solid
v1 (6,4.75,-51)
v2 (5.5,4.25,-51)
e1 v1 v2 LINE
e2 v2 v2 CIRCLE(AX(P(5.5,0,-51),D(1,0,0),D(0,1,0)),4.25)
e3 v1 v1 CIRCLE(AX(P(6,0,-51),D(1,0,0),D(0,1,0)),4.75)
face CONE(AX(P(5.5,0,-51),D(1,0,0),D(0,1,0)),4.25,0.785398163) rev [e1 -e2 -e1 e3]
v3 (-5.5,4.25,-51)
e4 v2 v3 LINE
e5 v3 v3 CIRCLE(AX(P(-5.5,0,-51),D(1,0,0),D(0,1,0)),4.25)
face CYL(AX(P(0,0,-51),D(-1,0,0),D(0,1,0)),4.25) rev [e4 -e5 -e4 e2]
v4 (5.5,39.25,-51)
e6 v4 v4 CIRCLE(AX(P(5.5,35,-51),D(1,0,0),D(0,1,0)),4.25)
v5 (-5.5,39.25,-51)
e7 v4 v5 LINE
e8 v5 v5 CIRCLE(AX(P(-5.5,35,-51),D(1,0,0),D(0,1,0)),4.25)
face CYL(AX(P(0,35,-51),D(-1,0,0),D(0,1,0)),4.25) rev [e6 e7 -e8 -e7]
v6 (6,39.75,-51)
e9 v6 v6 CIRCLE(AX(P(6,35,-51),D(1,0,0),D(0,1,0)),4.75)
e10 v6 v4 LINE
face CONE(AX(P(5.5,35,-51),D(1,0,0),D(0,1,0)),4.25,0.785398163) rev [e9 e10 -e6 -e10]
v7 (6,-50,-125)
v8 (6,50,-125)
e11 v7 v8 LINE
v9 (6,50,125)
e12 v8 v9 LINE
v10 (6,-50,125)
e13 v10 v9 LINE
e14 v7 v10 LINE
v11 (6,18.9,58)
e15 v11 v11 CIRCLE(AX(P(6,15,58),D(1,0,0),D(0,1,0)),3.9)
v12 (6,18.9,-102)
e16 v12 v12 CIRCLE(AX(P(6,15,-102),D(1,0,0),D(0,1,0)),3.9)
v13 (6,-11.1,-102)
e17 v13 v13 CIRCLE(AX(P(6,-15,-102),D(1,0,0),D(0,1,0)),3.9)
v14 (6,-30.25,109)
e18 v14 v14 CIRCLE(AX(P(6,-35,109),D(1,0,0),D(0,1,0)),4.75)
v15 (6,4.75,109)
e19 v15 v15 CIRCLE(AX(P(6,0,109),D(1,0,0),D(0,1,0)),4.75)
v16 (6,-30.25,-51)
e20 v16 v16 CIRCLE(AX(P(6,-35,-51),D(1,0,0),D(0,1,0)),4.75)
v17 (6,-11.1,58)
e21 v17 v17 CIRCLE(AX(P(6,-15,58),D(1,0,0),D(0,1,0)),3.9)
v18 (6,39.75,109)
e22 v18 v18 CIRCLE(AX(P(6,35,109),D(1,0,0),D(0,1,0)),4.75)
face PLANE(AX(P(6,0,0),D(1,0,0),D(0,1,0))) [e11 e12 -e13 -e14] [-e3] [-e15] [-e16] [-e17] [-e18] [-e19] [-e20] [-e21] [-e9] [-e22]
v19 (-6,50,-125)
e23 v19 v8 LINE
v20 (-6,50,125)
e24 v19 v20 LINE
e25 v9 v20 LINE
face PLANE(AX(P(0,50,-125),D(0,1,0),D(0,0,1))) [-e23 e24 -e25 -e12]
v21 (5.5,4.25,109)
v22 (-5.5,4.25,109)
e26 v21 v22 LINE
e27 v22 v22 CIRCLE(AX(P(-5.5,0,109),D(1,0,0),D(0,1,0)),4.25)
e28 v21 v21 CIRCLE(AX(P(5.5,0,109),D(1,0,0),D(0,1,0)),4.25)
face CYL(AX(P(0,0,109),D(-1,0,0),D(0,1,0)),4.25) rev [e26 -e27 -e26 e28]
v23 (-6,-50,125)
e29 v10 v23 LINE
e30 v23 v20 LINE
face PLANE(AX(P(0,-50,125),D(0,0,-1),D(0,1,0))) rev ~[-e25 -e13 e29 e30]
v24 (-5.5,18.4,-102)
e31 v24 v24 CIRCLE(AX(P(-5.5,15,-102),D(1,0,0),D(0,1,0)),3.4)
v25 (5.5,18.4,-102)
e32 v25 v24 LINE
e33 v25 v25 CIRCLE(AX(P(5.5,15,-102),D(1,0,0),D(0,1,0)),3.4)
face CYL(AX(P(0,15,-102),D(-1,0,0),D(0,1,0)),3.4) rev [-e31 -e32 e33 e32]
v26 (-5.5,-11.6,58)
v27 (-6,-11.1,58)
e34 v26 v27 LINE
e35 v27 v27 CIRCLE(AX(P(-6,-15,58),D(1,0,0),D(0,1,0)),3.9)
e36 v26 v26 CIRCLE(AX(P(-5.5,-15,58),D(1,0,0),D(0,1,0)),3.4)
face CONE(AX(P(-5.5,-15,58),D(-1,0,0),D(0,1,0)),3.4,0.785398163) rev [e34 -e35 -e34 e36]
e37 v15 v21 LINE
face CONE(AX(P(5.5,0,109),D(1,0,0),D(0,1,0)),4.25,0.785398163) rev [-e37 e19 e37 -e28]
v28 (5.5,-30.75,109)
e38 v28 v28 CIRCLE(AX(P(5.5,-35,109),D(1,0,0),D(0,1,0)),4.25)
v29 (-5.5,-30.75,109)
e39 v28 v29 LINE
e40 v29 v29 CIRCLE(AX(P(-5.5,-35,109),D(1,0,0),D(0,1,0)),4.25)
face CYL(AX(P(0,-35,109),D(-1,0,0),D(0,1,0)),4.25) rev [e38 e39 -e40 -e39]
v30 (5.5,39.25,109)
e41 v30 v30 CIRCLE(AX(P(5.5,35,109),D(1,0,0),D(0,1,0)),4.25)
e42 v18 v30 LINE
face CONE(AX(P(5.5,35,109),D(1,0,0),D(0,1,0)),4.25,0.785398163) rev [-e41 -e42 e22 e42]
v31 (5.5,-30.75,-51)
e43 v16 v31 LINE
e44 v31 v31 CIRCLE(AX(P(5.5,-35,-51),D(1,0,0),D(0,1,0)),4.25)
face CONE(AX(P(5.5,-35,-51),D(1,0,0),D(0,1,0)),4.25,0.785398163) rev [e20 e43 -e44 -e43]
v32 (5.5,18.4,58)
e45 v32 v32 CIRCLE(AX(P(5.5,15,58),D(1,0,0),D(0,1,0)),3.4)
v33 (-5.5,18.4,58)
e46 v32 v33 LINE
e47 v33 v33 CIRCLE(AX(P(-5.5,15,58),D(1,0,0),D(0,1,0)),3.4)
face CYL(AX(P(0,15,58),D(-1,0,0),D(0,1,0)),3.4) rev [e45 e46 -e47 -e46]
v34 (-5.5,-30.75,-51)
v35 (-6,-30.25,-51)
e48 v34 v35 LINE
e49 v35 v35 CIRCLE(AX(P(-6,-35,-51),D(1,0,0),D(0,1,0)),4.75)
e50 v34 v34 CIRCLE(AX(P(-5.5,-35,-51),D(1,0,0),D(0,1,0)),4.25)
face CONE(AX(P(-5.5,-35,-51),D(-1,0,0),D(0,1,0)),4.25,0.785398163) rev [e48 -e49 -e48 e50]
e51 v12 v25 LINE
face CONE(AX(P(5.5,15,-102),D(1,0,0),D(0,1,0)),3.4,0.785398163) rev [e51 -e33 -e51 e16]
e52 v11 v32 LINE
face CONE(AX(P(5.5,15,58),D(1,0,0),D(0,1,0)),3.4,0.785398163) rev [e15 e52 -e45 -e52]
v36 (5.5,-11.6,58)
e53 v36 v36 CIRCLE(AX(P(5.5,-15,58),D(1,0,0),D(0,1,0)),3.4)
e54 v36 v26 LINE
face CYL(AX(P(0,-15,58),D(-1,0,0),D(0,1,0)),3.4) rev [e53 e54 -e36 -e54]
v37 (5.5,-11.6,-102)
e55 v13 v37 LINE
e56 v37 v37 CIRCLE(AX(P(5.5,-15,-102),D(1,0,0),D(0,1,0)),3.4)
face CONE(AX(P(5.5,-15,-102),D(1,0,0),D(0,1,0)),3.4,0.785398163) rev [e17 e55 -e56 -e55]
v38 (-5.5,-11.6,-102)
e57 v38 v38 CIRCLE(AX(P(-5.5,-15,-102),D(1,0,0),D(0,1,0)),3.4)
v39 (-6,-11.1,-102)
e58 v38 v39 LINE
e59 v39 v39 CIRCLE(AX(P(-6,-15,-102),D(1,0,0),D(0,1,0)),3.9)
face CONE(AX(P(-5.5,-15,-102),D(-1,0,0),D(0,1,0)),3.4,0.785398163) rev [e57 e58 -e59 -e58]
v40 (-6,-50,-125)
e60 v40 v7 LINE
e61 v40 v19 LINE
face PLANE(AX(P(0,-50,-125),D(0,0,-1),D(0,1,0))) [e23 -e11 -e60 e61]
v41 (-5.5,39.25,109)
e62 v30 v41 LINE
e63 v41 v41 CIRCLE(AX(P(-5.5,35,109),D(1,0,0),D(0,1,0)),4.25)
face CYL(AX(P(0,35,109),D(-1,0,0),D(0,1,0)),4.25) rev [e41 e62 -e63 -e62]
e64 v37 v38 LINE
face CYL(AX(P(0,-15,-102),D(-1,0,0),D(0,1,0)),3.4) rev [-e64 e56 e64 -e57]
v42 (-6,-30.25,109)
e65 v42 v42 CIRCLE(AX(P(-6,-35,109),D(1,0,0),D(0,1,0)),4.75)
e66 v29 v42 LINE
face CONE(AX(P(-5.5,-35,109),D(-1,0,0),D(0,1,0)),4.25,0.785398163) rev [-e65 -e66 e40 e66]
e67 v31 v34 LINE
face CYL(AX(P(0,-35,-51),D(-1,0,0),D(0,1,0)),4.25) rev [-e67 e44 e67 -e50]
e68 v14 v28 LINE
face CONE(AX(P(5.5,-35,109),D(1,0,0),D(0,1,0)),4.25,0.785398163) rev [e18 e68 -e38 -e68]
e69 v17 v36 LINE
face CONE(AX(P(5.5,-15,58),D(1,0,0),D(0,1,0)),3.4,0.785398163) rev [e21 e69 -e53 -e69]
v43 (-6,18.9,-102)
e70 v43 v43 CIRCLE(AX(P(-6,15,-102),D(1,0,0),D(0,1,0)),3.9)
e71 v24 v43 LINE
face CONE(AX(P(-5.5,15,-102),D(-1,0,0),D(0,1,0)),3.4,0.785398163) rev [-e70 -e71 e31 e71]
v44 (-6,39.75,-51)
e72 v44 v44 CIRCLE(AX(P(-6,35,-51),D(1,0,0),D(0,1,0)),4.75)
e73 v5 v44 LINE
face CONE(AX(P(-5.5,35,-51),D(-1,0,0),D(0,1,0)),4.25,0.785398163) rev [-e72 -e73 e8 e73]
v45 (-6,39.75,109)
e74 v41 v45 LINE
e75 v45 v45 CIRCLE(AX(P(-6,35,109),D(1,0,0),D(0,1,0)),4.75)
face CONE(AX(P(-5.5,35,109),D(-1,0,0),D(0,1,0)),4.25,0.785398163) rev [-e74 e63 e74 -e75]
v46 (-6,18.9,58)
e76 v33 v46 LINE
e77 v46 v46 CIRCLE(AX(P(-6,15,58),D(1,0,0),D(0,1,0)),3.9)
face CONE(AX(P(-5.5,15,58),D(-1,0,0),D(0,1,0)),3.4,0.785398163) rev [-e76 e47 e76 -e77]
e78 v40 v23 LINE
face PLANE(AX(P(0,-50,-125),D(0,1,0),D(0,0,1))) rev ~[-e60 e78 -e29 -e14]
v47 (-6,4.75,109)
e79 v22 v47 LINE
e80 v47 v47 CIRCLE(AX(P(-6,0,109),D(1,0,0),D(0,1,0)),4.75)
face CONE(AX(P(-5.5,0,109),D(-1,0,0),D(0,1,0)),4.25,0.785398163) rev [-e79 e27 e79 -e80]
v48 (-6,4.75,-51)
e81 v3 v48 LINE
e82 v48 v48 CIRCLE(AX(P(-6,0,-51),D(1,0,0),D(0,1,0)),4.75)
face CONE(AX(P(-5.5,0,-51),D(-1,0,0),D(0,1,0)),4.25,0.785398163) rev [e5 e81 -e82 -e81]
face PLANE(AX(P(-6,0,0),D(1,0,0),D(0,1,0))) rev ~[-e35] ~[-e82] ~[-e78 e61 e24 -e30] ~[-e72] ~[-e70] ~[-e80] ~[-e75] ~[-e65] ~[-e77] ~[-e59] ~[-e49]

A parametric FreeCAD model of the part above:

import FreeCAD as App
import Part
import Sketcher
from FreeCAD import Vector
Q = App.Units.Quantity


def edges_at(feature, points):
    """Names of the edges that pass closest to the given points."""
    edges = feature.Shape.Edges
    near = lambda p: min(range(len(edges)), key=lambda i: edges[i].distToShape(Part.Vertex(*p))[0])
    return sorted({f"Edge{near(p) + 1}" for p in points})

doc = App.newDocument("Part")
body = doc.addObject("PartDesign::Body", "Body")

# Sketch on YZ plane
sketch1 = doc.addObject("Sketcher::SketchObject", "Sketch")
body.addObject(sketch1)
sketch1.AttachmentSupport = (doc.YZ_Plane, [""])
sketch1.MapMode = "FlatFace"
sketch1.addGeometry(Part.LineSegment(Vector(-50, 125, 0), Vector(-50, -125, 0)), False)
sketch1.addGeometry(Part.LineSegment(Vector(-50, -125, 0), Vector(50, -125, 0)), False)
sketch1.addGeometry(Part.LineSegment(Vector(50, -125, 0), Vector(50, 125, 0)), False)
sketch1.addGeometry(Part.LineSegment(Vector(50, 125, 0), Vector(-50, 125, 0)), False)
sketch1.addGeometry(Part.Circle(Vector(-35, -51, 0), Vector(0, 0, 1), 4.25), False)
sketch1.addGeometry(Part.Circle(Vector(-15, -102, 0), Vector(0, 0, 1), 3.4), False)
sketch1.addGeometry(Part.Circle(Vector(15, -102, 0), Vector(0, 0, 1), 3.4), False)
sketch1.addGeometry(Part.Circle(Vector(0, -51, 0), Vector(0, 0, 1), 4.25), False)
sketch1.addGeometry(Part.Circle(Vector(35, -51, 0), Vector(0, 0, 1), 4.25), False)
sketch1.addGeometry(Part.Circle(Vector(-15, 58, 0), Vector(0, 0, 1), 3.4), False)
sketch1.addGeometry(Part.Circle(Vector(-35, 109, 0), Vector(0, 0, 1), 4.25), False)
sketch1.addGeometry(Part.Circle(Vector(15, 58, 0), Vector(0, 0, 1), 3.4), False)
sketch1.addGeometry(Part.Circle(Vector(0, 109, 0), Vector(0, 0, 1), 4.25), False)
sketch1.addGeometry(Part.Circle(Vector(35, 109, 0), Vector(0, 0, 1), 4.25), False)
sketch1.addConstraint(Sketcher.Constraint("Coincident", 0, 2, 1, 1))
sketch1.addConstraint(Sketcher.Constraint("Coincident", 1, 2, 2, 1))
sketch1.addConstraint(Sketcher.Constraint("Coincident", 2, 2, 3, 1))
sketch1.addConstraint(Sketcher.Constraint("Coincident", 3, 2, 0, 1))
sketch1.addConstraint(Sketcher.Constraint("Vertical", 0))
sketch1.addConstraint(Sketcher.Constraint("Horizontal", 1))
sketch1.addConstraint(Sketcher.Constraint("Vertical", 2))
sketch1.addConstraint(Sketcher.Constraint("Horizontal", 3))
sketch1.addConstraint(Sketcher.Constraint("Equal", 5, 6))
sketch1.addConstraint(Sketcher.Constraint("Equal", 4, 7))
sketch1.addConstraint(Sketcher.Constraint("Equal", 7, 8))
sketch1.addConstraint(Sketcher.Constraint("Equal", 6, 9))
sketch1.addConstraint(Sketcher.Constraint("Equal", 8, 10))
sketch1.addConstraint(Sketcher.Constraint("Equal", 9, 11))
sketch1.addConstraint(Sketcher.Constraint("Equal", 10, 12))
sketch1.addConstraint(Sketcher.Constraint("Equal", 12, 13))
sketch1.addConstraint(Sketcher.Constraint("Symmetric", 0, 2, 2, 2, -1, 1))
sketch1.addConstraint(Sketcher.Constraint("Symmetric", 5, 3, 6, 3, -2))
sketch1.addConstraint(Sketcher.Constraint("Symmetric", 4, 3, 8, 3, -2))
sketch1.addConstraint(Sketcher.Constraint("Symmetric", 9, 3, 11, 3, -2))
sketch1.addConstraint(Sketcher.Constraint("Symmetric", 10, 3, 13, 3, -2))
sketch1.addConstraint(Sketcher.Constraint("PointOnObject", 7, 3, -2))
sketch1.addConstraint(Sketcher.Constraint("PointOnObject", 12, 3, -2))
sketch1.addConstraint(Sketcher.Constraint("Horizontal", 4, 3, 7, 3))
sketch1.addConstraint(Sketcher.Constraint("Horizontal", 10, 3, 12, 3))
sketch1.addConstraint(Sketcher.Constraint("Vertical", 5, 3, 9, 3))
sketch1.addConstraint(Sketcher.Constraint("Vertical", 4, 3, 10, 3))
sketch1.addConstraint(Sketcher.Constraint("Diameter", 4, Q("8.5 mm")))
sketch1.addConstraint(Sketcher.Constraint("Diameter", 5, Q("6.8 mm")))
sketch1.addConstraint(Sketcher.Constraint("DistanceX", 1, 1, 1, 2, Q("100 mm")))
sketch1.addConstraint(Sketcher.Constraint("DistanceY", 0, 2, 0, 1, Q("250 mm")))
sketch1.addConstraint(Sketcher.Constraint("DistanceX", 4, 3, -1, 1, Q("35 mm")))
sketch1.addConstraint(Sketcher.Constraint("DistanceY", 4, 3, -1, 1, Q("51 mm")))
sketch1.addConstraint(Sketcher.Constraint("DistanceX", 5, 3, -1, 1, Q("15 mm")))
sketch1.addConstraint(Sketcher.Constraint("DistanceY", 5, 3, -1, 1, Q("102 mm")))
sketch1.addConstraint(Sketcher.Constraint("DistanceY", -1, 1, 9, 3, Q("58 mm")))
sketch1.addConstraint(Sketcher.Constraint("DistanceY", -1, 1, 10, 3, Q("109 mm")))
pad1 = doc.addObject("PartDesign::Pad", "Pad")
body.addObject(pad1)
pad1.Profile = sketch1
pad1.Length = 12
pad1.Midplane = True
doc.recompute()

chamfer = doc.addObject("PartDesign::Chamfer", "Chamfer")
body.addObject(chamfer)
chamfer.Base = (pad1, edges_at(pad1, [
    (6, -39.25, 109),
    (0, -30.75, 109),
    (-6, -39.25, 109),
    (6, -4.25, 109),
    (0, 4.25, 109),
    (-6, -4.25, 109),
    (6, 30.75, 109),
    (0, 39.25, 109),
    (-6, 30.75, 109),
    (6, 30.75, -51),
    (0, 39.25, -51),
    (-6, 30.75, -51),
    (6, -4.25, -51),
    (0, 4.25, -51),
    (-6, -4.25, -51),
    (6, -39.25, -51),
    (0, -30.75, -51),
    (-6, -39.25, -51),
    (6, -18.4, 58),
    (0, -11.6, 58),
    (-6, -18.4, 58),
    (6, 11.6, 58),
    (0, 18.4, 58),
    (-6, 11.6, 58),
    (6, -18.4, -102),
    (0, -11.6, -102),
    (-6, -18.4, -102),
    (6, 11.6, -102),
    (0, 18.4, -102),
    (-6, 11.6, -102),
]))
chamfer.Size = 0.5

doc.recompute()
